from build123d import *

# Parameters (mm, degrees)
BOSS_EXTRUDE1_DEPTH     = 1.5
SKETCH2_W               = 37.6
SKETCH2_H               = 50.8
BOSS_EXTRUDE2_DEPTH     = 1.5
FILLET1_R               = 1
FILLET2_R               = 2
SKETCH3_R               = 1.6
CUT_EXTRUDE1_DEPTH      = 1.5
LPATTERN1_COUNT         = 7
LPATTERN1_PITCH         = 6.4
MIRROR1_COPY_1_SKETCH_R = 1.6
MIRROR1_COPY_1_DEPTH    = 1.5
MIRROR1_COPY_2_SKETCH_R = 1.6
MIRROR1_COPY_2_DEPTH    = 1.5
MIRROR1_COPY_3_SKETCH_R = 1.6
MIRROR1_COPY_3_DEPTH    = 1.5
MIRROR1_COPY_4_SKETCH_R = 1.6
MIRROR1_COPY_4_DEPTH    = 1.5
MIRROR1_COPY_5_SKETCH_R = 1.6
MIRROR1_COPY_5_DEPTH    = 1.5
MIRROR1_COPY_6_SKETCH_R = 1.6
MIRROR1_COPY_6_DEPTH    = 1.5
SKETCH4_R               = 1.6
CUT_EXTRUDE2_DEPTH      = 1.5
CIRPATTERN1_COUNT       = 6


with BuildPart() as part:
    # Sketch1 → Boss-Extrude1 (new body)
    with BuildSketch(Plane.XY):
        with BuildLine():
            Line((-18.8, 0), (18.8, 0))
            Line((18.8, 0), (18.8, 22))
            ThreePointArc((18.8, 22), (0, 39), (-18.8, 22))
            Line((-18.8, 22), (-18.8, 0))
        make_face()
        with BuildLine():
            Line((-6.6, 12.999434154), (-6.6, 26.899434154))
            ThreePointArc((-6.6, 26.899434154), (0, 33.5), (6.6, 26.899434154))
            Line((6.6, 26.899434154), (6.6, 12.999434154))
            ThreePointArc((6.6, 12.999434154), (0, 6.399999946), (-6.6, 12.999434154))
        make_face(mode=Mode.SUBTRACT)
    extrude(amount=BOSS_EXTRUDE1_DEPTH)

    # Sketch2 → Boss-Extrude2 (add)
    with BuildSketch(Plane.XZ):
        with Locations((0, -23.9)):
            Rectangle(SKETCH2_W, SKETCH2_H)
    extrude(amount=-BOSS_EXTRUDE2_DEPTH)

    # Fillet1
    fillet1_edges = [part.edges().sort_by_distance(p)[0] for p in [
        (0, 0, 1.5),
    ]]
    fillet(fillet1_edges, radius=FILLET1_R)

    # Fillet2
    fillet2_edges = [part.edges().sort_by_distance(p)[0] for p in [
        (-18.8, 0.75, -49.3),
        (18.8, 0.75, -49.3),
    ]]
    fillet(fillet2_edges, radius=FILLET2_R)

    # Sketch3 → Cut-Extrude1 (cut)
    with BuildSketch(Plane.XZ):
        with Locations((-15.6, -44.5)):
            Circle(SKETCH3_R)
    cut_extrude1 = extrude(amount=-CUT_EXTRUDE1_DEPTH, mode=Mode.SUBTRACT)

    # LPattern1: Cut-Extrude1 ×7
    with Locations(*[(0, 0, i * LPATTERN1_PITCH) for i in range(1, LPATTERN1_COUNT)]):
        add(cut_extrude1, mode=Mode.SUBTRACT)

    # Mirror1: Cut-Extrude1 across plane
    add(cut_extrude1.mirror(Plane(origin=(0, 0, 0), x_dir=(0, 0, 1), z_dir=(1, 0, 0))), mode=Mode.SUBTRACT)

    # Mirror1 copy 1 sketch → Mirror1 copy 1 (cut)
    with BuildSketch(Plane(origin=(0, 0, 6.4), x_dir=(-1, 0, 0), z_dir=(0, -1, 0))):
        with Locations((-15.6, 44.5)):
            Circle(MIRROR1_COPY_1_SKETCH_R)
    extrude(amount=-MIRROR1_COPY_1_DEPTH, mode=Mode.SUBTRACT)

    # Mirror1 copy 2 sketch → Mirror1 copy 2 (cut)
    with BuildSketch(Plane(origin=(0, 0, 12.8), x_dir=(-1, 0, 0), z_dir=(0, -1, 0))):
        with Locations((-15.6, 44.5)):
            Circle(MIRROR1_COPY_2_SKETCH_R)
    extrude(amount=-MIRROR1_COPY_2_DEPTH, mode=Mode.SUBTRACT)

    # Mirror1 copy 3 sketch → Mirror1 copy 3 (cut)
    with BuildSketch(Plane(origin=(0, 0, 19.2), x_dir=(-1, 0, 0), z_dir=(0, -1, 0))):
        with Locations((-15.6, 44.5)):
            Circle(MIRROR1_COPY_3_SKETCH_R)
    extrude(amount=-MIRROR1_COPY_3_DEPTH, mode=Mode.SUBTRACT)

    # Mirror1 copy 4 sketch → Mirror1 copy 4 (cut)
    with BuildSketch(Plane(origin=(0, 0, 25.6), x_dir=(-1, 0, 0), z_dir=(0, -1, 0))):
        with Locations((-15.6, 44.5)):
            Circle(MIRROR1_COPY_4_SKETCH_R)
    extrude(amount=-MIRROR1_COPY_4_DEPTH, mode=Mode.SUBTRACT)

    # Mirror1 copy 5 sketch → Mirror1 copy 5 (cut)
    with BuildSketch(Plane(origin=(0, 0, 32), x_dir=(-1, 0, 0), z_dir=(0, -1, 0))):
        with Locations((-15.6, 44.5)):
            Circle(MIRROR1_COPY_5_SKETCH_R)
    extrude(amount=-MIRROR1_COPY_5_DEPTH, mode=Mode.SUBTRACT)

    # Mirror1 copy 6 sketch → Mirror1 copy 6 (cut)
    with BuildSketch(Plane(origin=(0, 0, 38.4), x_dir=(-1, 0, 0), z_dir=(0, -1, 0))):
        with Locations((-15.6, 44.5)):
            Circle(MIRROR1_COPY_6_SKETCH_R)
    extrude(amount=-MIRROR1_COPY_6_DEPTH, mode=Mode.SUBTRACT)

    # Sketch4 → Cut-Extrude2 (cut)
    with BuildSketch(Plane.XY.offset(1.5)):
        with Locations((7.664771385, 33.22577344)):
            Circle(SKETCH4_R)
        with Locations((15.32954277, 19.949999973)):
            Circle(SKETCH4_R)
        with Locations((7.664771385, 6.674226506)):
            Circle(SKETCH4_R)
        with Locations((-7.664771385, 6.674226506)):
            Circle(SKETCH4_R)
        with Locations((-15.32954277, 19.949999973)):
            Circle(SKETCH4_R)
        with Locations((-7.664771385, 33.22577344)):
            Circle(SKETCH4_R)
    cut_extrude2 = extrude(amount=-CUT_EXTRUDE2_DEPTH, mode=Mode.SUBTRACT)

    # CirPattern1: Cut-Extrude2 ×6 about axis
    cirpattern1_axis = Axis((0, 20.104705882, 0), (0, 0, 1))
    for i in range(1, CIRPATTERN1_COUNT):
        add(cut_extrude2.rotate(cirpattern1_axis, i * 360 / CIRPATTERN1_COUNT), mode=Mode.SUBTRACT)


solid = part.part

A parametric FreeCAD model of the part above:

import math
import FreeCAD as App
import Part
import Sketcher
Q = App.Units.Quantity


def edges_at(feature, points):
    """Names of the edges that pass closest to the given points."""
    edges = feature.Shape.Edges
    near = lambda p: min(range(len(edges)), key=lambda i: edges[i].distToShape(Part.Vertex(*p))[0])
    return sorted({f"Edge{near(p) + 1}" for p in points})

doc = App.newDocument("Part")
body = doc.addObject("PartDesign::Body", "Body")

sketch1 = doc.addObject("Sketcher::SketchObject", "Sketch")
body.addObject(sketch1)
sketch1.AttachmentSupport = (doc.XY_Plane, [""])
sketch1.MapMode = "FlatFace"
sketch1.addGeometry([
    Part.LineSegment(App.Vector(-18.8, 0, 0), App.Vector(18.8, 0, 0)),
    Part.LineSegment(App.Vector(18.8, 0, 0), App.Vector(18.8, 22, 0)),
    Part.ArcOfCircle(Part.Circle(App.Vector(0, 20.104706, 0), App.Vector(0, 0, 1), 18.895294), math.radians(5.756739), math.radians(174.243261)),
    Part.LineSegment(App.Vector(-18.8, 22, 0), App.Vector(-18.8, 0, 0)),
    Part.ArcOfCircle(Part.Circle(App.Vector(0, 13, 0), App.Vector(0, 0, 1), 6.6), math.radians(-179.995088), math.radians(-0.004912)),
    Part.LineSegment(App.Vector(-6.6, 12.999434, 0), App.Vector(-6.6, 26.899434, 0)),
    Part.ArcOfCircle(Part.Circle(App.Vector(0, 26.9, 0), App.Vector(0, 0, 1), 6.6), math.radians(-0.004912), math.radians(180.004912)),
    Part.LineSegment(App.Vector(6.6, 26.899434, 0), App.Vector(6.6, 12.999434, 0)),
], False)
sketch1.addConstraint([
    Sketcher.Constraint("Coincident", 0, 2, 1, 1),
    Sketcher.Constraint("Coincident", 1, 2, 2, 1),
    Sketcher.Constraint("Coincident", 2, 2, 3, 1),
    Sketcher.Constraint("Coincident", 3, 2, 0, 1),
    Sketcher.Constraint("Coincident", 4, 1, 5, 1),
    Sketcher.Constraint("Coincident", 5, 2, 6, 2),
    Sketcher.Constraint("Coincident", 6, 1, 7, 1),
    Sketcher.Constraint("Coincident", 7, 2, 4, 2),
    Sketcher.Constraint("Horizontal", 0),
    Sketcher.Constraint("Vertical", 1),
    Sketcher.Constraint("Vertical", 3),
    Sketcher.Constraint("Vertical", 5),
    Sketcher.Constraint("Vertical", 7),
    Sketcher.Constraint("Symmetric", 0, 2, 3, 2, -1, 1),
    Sketcher.Constraint("Symmetric", 5, 2, 6, 1, -2),
    Sketcher.Constraint("PointOnObject", 2, 3, -2),
    Sketcher.Constraint("Horizontal", 4, 1, 7, 2),
    Sketcher.Constraint("Radius", 4, Q("6.6 mm")),
    Sketcher.Constraint("DistanceY", 1, 1, 1, 2, Q("22 mm")),
    Sketcher.Constraint("DistanceX", 0, 1, 0, 2, Q("37.6 mm")),
    Sketcher.Constraint("DistanceY", 5, 1, 5, 2, Q("13.9 mm")),
    Sketcher.Constraint("DistanceY", -1, 1, 4, 3, Q("13 mm")),
    Sketcher.Constraint("DistanceY", -1, 1, 6, 3, Q("26.9 mm")),
    Sketcher.Constraint("Radius", 2, Q("18.895294 mm")),
    Sketcher.Constraint("DistanceY", 4, 1, 2, 3, Q("7.105272 mm")),
])
pad1 = doc.addObject("PartDesign::Pad", "Pad")
body.addObject(pad1)
pad1.Profile = sketch1
pad1.Length = 1.5

sketch2 = doc.addObject("Sketcher::SketchObject", "Sketch001")
body.addObject(sketch2)
sketch2.AttachmentSupport = (doc.XZ_Plane, [""])
sketch2.MapMode = "FlatFace"
sketch2.addGeometry([
    Part.LineSegment(App.Vector(-18.8, 1.5, 0), App.Vector(-18.8, -49.3, 0)),
    Part.LineSegment(App.Vector(-18.8, -49.3, 0), App.Vector(18.8, -49.3, 0)),
    Part.LineSegment(App.Vector(18.8, -49.3, 0), App.Vector(18.8, 1.5, 0)),
    Part.LineSegment(App.Vector(18.8, 1.5, 0), App.Vector(-18.8, 1.5, 0)),
], False)
sketch2.addConstraint([
    Sketcher.Constraint("Coincident", 0, 2, 1, 1),
    Sketcher.Constraint("Coincident", 1, 2, 2, 1),
    Sketcher.Constraint("Coincident", 2, 2, 3, 1),
    Sketcher.Constraint("Coincident", 3, 2, 0, 1),
    Sketcher.Constraint("Vertical", 0),
    Sketcher.Constraint("Horizontal", 1),
    Sketcher.Constraint("Vertical", 2),
    Sketcher.Constraint("Horizontal", 3),
    Sketcher.Constraint("DistanceX", 1, 1, 1, 2, Q("37.6 mm")),
    Sketcher.Constraint("DistanceY", 0, 2, 0, 1, Q("50.8 mm")),
    Sketcher.Constraint("DistanceX", 0, 2, -1, 1, Q("18.8 mm")),
    Sketcher.Constraint("DistanceY", 0, 2, -1, 1, Q("49.3 mm")),
])
pad2 = doc.addObject("PartDesign::Pad", "Pad001")
body.addObject(pad2)
pad2.Profile = sketch2
pad2.Length = 1.5
pad2.Reversed = True
doc.recompute()

fillet = doc.addObject("PartDesign::Fillet", "Fillet")
body.addObject(fillet)
fillet.Base = (pad2, edges_at(pad2, [(0, 0, 1.5)]))
fillet.Radius = 1
doc.recompute()

fillet2 = doc.addObject("PartDesign::Fillet", "Fillet001")
body.addObject(fillet2)
fillet2.Base = (fillet, edges_at(fillet, [(-18.8, 0.75, -49.3), (18.8, 0.75, -49.3)]))
fillet2.Radius = 2

sketch3 = doc.addObject("Sketcher::SketchObject", "Sketch002")
body.addObject(sketch3)
sketch3.AttachmentSupport = (doc.XZ_Plane, [""])
sketch3.MapMode = "FlatFace"
sketch3.addGeometry(Part.Circle(App.Vector(-15.6, -44.5, 0), App.Vector(0, 0, 1), 1.6), False)
sketch3.addConstraint([
    Sketcher.Constraint("Diameter", 0, Q("3.2 mm")),
    Sketcher.Constraint("DistanceX", 0, 3, -1, 1, Q("15.6 mm")),
    Sketcher.Constraint("DistanceY", 0, 3, -1, 1, Q("44.5 mm")),
])
pocket1 = doc.addObject("PartDesign::Pocket", "Pocket")
body.addObject(pocket1)
pocket1.Profile = sketch3
pocket1.Length = 1.5
doc.recompute()

linearpattern = doc.addObject("PartDesign::LinearPattern", "LinearPattern")
body.addObject(linearpattern)
linearpattern.Originals = [pocket1]
linearpattern.Direction = (doc.Z_Axis, [""])
linearpattern.Mode = "offset"
linearpattern.Offset = 6.4
linearpattern.Occurrences = 7
body.Tip = linearpattern
doc.recompute()

mirrored = doc.addObject("PartDesign::Mirrored", "Mirrored")
body.addObject(mirrored)
mirrored.Originals = [pocket1]
mirrored.MirrorPlane = (doc.YZ_Plane, [""])
body.Tip = mirrored

sketch4 = doc.addObject("Sketcher::SketchObject", "Sketch003")
body.addObject(sketch4)
sketch4.AttachmentSupport = (doc.XZ_Plane, [""])
sketch4.MapMode = "FlatFace"
sketch4.addGeometry(Part.Circle(App.Vector(15.6, -38.1, 0), App.Vector(0, 0, 1), 1.6), False)
sketch4.addConstraint([
    Sketcher.Constraint("Diameter", 0, Q("3.2 mm")),
    Sketcher.Constraint("DistanceX", -1, 1, 0, 3, Q("15.6 mm")),
    Sketcher.Constraint("DistanceY", 0, 3, -1, 1, Q("38.1 mm")),
])
pocket2 = doc.addObject("PartDesign::Pocket", "Pocket001")
body.addObject(pocket2)
pocket2.Profile = sketch4
pocket2.Length = 1.5

sketch5 = doc.addObject("Sketcher::SketchObject", "Sketch004")
body.addObject(sketch5)
sketch5.AttachmentSupport = (doc.XZ_Plane, [""])
sketch5.MapMode = "FlatFace"
sketch5.addGeometry(Part.Circle(App.Vector(15.6, -31.7, 0), App.Vector(0, 0, 1), 1.6), False)
sketch5.addConstraint([
    Sketcher.Constraint("Diameter", 0, Q("3.2 mm")),
    Sketcher.Constraint("DistanceX", -1, 1, 0, 3, Q("15.6 mm")),
    Sketcher.Constraint("DistanceY", 0, 3, -1, 1, Q("31.7 mm")),
])
pocket3 = doc.addObject("PartDesign::Pocket", "Pocket002")
body.addObject(pocket3)
pocket3.Profile = sketch5
pocket3.Length = 1.5

sketch6 = doc.addObject("Sketcher::SketchObject", "Sketch005")
body.addObject(sketch6)
sketch6.AttachmentSupport = (doc.XZ_Plane, [""])
sketch6.MapMode = "FlatFace"
sketch6.addGeometry(Part.Circle(App.Vector(15.6, -25.3, 0), App.Vector(0, 0, 1), 1.6), False)
sketch6.addConstraint([
    Sketcher.Constraint("Diameter", 0, Q("3.2 mm")),
    Sketcher.Constraint("DistanceX", -1, 1, 0, 3, Q("15.6 mm")),
    Sketcher.Constraint("DistanceY", 0, 3, -1, 1, Q("25.3 mm")),
])
pocket4 = doc.addObject("PartDesign::Pocket", "Pocket003")
body.addObject(pocket4)
pocket4.Profile = sketch6
pocket4.Length = 1.5

sketch7 = doc.addObject("Sketcher::SketchObject", "Sketch006")
body.addObject(sketch7)
sketch7.AttachmentSupport = (doc.XZ_Plane, [""])
sketch7.MapMode = "FlatFace"
sketch7.addGeometry(Part.Circle(App.Vector(15.6, -18.9, 0), App.Vector(0, 0, 1), 1.6), False)
sketch7.addConstraint([
    Sketcher.Constraint("Diameter", 0, Q("3.2 mm")),
    Sketcher.Constraint("DistanceX", -1, 1, 0, 3, Q("15.6 mm")),
    Sketcher.Constraint("DistanceY", 0, 3, -1, 1, Q("18.9 mm")),
])
pocket5 = doc.addObject("PartDesign::Pocket", "Pocket004")
body.addObject(pocket5)
pocket5.Profile = sketch7
pocket5.Length = 1.5

sketch8 = doc.addObject("Sketcher::SketchObject", "Sketch007")
body.addObject(sketch8)
sketch8.AttachmentSupport = (doc.XZ_Plane, [""])
sketch8.MapMode = "FlatFace"
sketch8.addGeometry(Part.Circle(App.Vector(15.6, -12.5, 0), App.Vector(0, 0, 1), 1.6), False)
sketch8.addConstraint([
    Sketcher.Constraint("Diameter", 0, Q("3.2 mm")),
    Sketcher.Constraint("DistanceX", -1, 1, 0, 3, Q("15.6 mm")),
    Sketcher.Constraint("DistanceY", 0, 3, -1, 1, Q("12.5 mm")),
])
pocket6 = doc.addObject("PartDesign::Pocket", "Pocket005")
body.addObject(pocket6)
pocket6.Profile = sketch8
pocket6.Length = 1.5

sketch9 = doc.addObject("Sketcher::SketchObject", "Sketch008")
body.addObject(sketch9)
sketch9.AttachmentSupport = (doc.XZ_Plane, [""])
sketch9.MapMode = "FlatFace"
sketch9.addGeometry(Part.Circle(App.Vector(15.6, -6.1, 0), App.Vector(0, 0, 1), 1.6), False)
sketch9.addConstraint([
    Sketcher.Constraint("Diameter", 0, Q("3.2 mm")),
    Sketcher.Constraint("DistanceX", -1, 1, 0, 3, Q("15.6 mm")),
    Sketcher.Constraint("DistanceY", 0, 3, -1, 1, Q("6.1 mm")),
])
pocket7 = doc.addObject("PartDesign::Pocket", "Pocket006")
body.addObject(pocket7)
pocket7.Profile = sketch9
pocket7.Length = 1.5

sketch10 = doc.addObject("Sketcher::SketchObject", "Sketch009")
body.addObject(sketch10)
sketch10.AttachmentSupport = (doc.XY_Plane, [""])
sketch10.MapMode = "FlatFace"
sketch10.AttachmentOffset = App.Placement(App.Vector(0, 0, 1.5), App.Rotation())
sketch10.addGeometry([
    Part.Circle(App.Vector(7.664771, 33.225773, 0), App.Vector(0, 0, 1), 1.6),
    Part.Circle(App.Vector(15.329543, 19.95, 0), App.Vector(0, 0, 1), 1.6),
    Part.Circle(App.Vector(7.664771, 6.674227, 0), App.Vector(0, 0, 1), 1.6),
    Part.Circle(App.Vector(-7.664771, 6.674227, 0), App.Vector(0, 0, 1), 1.6),
    Part.Circle(App.Vector(-15.329543, 19.95, 0), App.Vector(0, 0, 1), 1.6),
    Part.Circle(App.Vector(-7.664771, 33.225773, 0), App.Vector(0, 0, 1), 1.6),
], False)
sketch10.addConstraint([
    Sketcher.Constraint("Equal", 0, 1),
    Sketcher.Constraint("Equal", 1, 2),
    Sketcher.Constraint("Equal", 2, 3),
    Sketcher.Constraint("Equal", 3, 4),
    Sketcher.Constraint("Equal", 4, 5),
    Sketcher.Constraint("Symmetric", 2, 3, 3, 3, -2),
    Sketcher.Constraint("Symmetric", 1, 3, 4, 3, -2),
    Sketcher.Constraint("Symmetric", 0, 3, 5, 3, -2),
    Sketcher.Constraint("Vertical", 0, 3, 2, 3),
    Sketcher.Constraint("Diameter", 0, Q("3.2 mm")),
    Sketcher.Constraint("DistanceY", -1, 1, 1, 3, Q("19.95 mm")),
    Sketcher.Constraint("DistanceX", -1, 1, 0, 3, Q("7.664771 mm")),
    Sketcher.Constraint("DistanceX", 0, 3, 1, 3, Q("7.664771 mm")),
    Sketcher.Constraint("DistanceY", -1, 1, 0, 3, Q("33.225773 mm")),
    Sketcher.Constraint("DistanceY", -1, 1, 2, 3, Q("6.674227 mm")),
])
pocket8 = doc.addObject("PartDesign::Pocket", "Pocket007")
body.addObject(pocket8)
pocket8.Profile = sketch10
pocket8.Length = 1.5
doc.recompute()

datumline = doc.addObject("PartDesign::Line", "DatumLine")
body.addObject(datumline)
datumline.Placement = App.Placement(App.Vector(0, 20.104706, 0), App.Rotation(App.Vector(0, 0, 1), App.Vector(0, 0, 1)))
polarpattern = doc.addObject("PartDesign::PolarPattern", "PolarPattern")
body.addObject(polarpattern)
polarpattern.Originals = [pocket8]
polarpattern.Axis = (datumline, [""])
polarpattern.Angle = 360
polarpattern.Occurrences = 6
body.Tip = polarpattern

doc.recompute()
